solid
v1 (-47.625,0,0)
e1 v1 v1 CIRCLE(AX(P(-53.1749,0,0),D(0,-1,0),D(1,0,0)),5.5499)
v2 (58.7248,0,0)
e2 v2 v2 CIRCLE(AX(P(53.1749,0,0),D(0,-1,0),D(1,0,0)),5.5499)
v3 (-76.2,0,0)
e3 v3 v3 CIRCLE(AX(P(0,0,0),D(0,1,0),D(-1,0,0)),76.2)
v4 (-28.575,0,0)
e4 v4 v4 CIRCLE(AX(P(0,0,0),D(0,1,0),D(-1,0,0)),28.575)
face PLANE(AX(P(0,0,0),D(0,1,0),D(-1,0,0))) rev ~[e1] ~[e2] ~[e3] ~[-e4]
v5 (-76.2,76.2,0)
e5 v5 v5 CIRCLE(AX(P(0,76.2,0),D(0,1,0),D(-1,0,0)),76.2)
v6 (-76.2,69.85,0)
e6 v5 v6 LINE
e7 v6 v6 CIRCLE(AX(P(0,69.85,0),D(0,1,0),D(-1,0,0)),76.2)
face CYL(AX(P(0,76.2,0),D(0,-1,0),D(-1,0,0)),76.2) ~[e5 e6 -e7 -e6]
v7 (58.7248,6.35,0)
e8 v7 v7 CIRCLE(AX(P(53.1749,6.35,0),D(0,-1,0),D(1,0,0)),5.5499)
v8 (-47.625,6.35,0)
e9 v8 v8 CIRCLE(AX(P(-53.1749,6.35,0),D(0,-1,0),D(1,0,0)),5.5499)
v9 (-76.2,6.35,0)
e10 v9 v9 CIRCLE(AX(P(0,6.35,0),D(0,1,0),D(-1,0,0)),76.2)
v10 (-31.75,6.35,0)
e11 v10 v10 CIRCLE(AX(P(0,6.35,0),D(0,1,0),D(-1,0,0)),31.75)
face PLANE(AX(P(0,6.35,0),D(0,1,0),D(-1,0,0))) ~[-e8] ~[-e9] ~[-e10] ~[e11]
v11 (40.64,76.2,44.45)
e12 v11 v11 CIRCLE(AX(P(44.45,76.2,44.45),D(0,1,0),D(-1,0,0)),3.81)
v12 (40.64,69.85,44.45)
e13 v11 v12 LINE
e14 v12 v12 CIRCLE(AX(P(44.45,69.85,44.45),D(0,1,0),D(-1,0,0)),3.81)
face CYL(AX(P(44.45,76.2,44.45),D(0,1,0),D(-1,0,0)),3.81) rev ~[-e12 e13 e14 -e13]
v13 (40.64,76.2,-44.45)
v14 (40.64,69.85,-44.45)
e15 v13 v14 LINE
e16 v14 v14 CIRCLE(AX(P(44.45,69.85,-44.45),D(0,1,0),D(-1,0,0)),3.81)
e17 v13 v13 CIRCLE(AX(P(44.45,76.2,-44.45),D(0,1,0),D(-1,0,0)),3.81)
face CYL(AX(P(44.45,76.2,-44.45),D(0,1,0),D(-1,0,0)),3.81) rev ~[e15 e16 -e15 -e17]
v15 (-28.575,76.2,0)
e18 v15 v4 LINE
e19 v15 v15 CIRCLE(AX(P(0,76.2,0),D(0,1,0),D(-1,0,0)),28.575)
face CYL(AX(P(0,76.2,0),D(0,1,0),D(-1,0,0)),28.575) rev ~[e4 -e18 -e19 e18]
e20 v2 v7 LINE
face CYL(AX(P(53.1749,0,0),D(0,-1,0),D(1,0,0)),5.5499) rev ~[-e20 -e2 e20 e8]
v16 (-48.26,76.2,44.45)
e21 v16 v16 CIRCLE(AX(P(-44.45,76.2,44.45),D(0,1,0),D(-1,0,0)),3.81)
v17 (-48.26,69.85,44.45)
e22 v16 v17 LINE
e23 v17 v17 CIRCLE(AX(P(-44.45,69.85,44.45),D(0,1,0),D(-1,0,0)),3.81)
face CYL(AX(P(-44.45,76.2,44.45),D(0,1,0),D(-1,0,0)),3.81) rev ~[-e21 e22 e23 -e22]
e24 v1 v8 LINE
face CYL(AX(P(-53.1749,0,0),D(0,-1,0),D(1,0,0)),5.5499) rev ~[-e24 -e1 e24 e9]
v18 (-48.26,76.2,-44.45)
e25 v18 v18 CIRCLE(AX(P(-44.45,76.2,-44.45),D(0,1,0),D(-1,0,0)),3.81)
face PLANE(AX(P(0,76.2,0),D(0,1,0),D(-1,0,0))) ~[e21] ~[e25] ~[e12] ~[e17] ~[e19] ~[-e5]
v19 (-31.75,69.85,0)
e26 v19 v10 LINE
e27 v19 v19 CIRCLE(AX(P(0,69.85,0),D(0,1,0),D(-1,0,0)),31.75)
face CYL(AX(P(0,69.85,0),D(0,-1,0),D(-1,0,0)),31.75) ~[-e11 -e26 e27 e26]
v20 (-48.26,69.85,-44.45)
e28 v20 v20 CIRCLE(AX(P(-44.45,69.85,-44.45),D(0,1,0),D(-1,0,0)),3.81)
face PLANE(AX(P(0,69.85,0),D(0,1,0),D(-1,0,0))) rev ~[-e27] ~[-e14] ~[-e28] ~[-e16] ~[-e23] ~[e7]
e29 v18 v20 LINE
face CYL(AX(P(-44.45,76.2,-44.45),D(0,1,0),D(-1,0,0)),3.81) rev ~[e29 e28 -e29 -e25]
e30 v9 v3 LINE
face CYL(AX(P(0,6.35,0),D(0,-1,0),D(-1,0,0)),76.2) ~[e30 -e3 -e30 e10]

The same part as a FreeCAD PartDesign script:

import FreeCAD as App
import Part
import Sketcher
Q = App.Units.Quantity

doc = App.newDocument("Part")
body = doc.addObject("PartDesign::Body", "Body")

# Sketch on XY plane
sketch1 = body.newObject("Sketcher::SketchObject", "Sketch")
sketch1.AttachmentSupport = (doc.getObject("XY_Plane"), [""])
sketch1.MapMode = "FlatFace"
sketch1.addGeometry(Part.LineSegment(App.Vector(0, 76, 0), App.Vector(-76, 76, 0)), False)
sketch1.addGeometry(Part.LineSegment(App.Vector(-76, 76, 0), App.Vector(-76, 70, 0)), False)
sketch1.addGeometry(Part.LineSegment(App.Vector(-76, 70, 0), App.Vector(-32, 70, 0)), False)
sketch1.addGeometry(Part.LineSegment(App.Vector(-32, 70, 0), App.Vector(-32, 6, 0)), False)
sketch1.addGeometry(Part.LineSegment(App.Vector(-32, 6, 0), App.Vector(-76, 6, 0)), False)
sketch1.addGeometry(Part.LineSegment(App.Vector(-76, 6, 0), App.Vector(-76, 0, 0)), False)
sketch1.addGeometry(Part.LineSegment(App.Vector(-76, 0, 0), App.Vector(0, 0, 0)), False)
sketch1.addGeometry(Part.LineSegment(App.Vector(0, 0, 0), App.Vector(0, 76, 0)), False)
sketch1.addConstraint(Sketcher.Constraint("Coincident", 0, 2, 1, 1))
sketch1.addConstraint(Sketcher.Constraint("Coincident", 1, 2, 2, 1))
sketch1.addConstraint(Sketcher.Constraint("Coincident", 2, 2, 3, 1))
sketch1.addConstraint(Sketcher.Constraint("Coincident", 3, 2, 4, 1))
sketch1.addConstraint(Sketcher.Constraint("Coincident", 4, 2, 5, 1))
sketch1.addConstraint(Sketcher.Constraint("Coincident", 5, 2, 6, 1))
sketch1.addConstraint(Sketcher.Constraint("Coincident", 6, 2, 7, 1))
sketch1.addConstraint(Sketcher.Constraint("Coincident", 7, 2, 0, 1))
sketch1.addConstraint(Sketcher.Constraint("Horizontal", 0))
sketch1.addConstraint(Sketcher.Constraint("Vertical", 1))
sketch1.addConstraint(Sketcher.Constraint("Horizontal", 2))
sketch1.addConstraint(Sketcher.Constraint("Vertical", 3))
sketch1.addConstraint(Sketcher.Constraint("Horizontal", 4))
sketch1.addConstraint(Sketcher.Constraint("Vertical", 5))
sketch1.addConstraint(Sketcher.Constraint("Horizontal", 6))
sketch1.addConstraint(Sketcher.Constraint("Vertical", 7))
sketch1.addConstraint(Sketcher.Constraint("Coincident", 6, 2, -1, 1))
sketch1.addConstraint(Sketcher.Constraint("Vertical", 1, 2, 4, 2))
sketch1.addConstraint(Sketcher.Constraint("Equal", 1, 5))
sketch1.addConstraint(Sketcher.Constraint("Equal", 6, 7))
sketch1.addConstraint(Sketcher.Constraint("DistanceX", 0, 2, 0, 1, Q("3 in")))
sketch1.addConstraint(Sketcher.Constraint("DistanceY", 3, 2, 3, 1, Q("2.5 in")))
sketch1.addConstraint(Sketcher.Constraint("DistanceX", 2, 1, 2, 2, Q("1.75 in")))
revolution = body.newObject("PartDesign::Revolution", "Revolution")
revolution.Profile = sketch1
revolution.ReferenceAxis = (sketch1, ["V_Axis"])
revolution.Angle = 360

# Sketch on XZ plane
sketch2 = body.newObject("Sketcher::SketchObject", "Sketch001")
sketch2.AttachmentSupport = (doc.getObject("XZ_Plane"), [""])
sketch2.MapMode = "FlatFace"
sketch2.addGeometry(Part.Circle(App.Vector(-53, 0, 0), App.Vector(0, 0, 1), 6), False)
sketch2.addGeometry(Part.Circle(App.Vector(53, 0, 0), App.Vector(0, 0, 1), 6), False)
sketch2.addConstraint(Sketcher.Constraint("Equal", 0, 1))
sketch2.addConstraint(Sketcher.Constraint("Symmetric", 0, 3, 1, 3, -1, 1))
sketch2.addConstraint(Sketcher.Constraint("PointOnObject", 0, 3, -1))
sketch2.addConstraint(Sketcher.Constraint("Diameter", 0, Q("0.437 in")))
sketch2.addConstraint(Sketcher.Constraint("DistanceX", 0, 3, 1, 3, Q("4.187 in")))
pocket1 = body.newObject("PartDesign::Pocket", "Pocket")
pocket1.Profile = sketch2
pocket1.Length = Q("0.25 in")

# Sketch on XZ plane
sketch3 = body.newObject("Sketcher::SketchObject", "Sketch002")
sketch3.AttachmentSupport = (doc.getObject("XZ_Plane"), [""])
sketch3.MapMode = "FlatFace"
sketch3.AttachmentOffset = App.Placement(App.Vector(0, 0, -3 * 25.4), App.Rotation())
sketch3.addGeometry(Part.Circle(App.Vector(0, 0, 0), App.Vector(0, 0, 1), 29), False)
sketch3.addConstraint(Sketcher.Constraint("Coincident", 0, 3, -1, 1))
sketch3.addConstraint(Sketcher.Constraint("Diameter", 0, Q("2.25 in")))
pocket2 = body.newObject("PartDesign::Pocket", "Pocket001")
pocket2.Profile = sketch3
pocket2.Length = Q("6 in")
pocket2.Reversed = True

# Sketch on XZ plane
sketch4 = body.newObject("Sketcher::SketchObject", "Sketch003")
sketch4.AttachmentSupport = (doc.getObject("XZ_Plane"), [""])
sketch4.MapMode = "FlatFace"
sketch4.AttachmentOffset = App.Placement(App.Vector(0, 0, -3 * 25.4), App.Rotation())
sketch4.addGeometry(Part.Circle(App.Vector(44.5, 44.5, 0), App.Vector(0, 0, 1), 3.8), False)
sketch4.addGeometry(Part.Circle(App.Vector(-44.5, -44.5, 0), App.Vector(0, 0, 1), 3.8), False)
sketch4.addGeometry(Part.Circle(App.Vector(-44.5, 44.5, 0), App.Vector(0, 0, 1), 3.8), False)
sketch4.addGeometry(Part.Circle(App.Vector(44.5, -44.5, 0), App.Vector(0, 0, 1), 3.8), False)
sketch4.addConstraint(Sketcher.Constraint("Equal", 0, 1))
sketch4.addConstraint(Sketcher.Constraint("Equal", 1, 2))
sketch4.addConstraint(Sketcher.Constraint("Equal", 2, 3))
sketch4.addConstraint(Sketcher.Constraint("Symmetric", 0, 3, 1, 3, -1, 1))
sketch4.addConstraint(Sketcher.Constraint("Symmetric", 2, 3, 3, 3, -1, 1))
sketch4.addConstraint(Sketcher.Constraint("Symmetric", 0, 3, 2, 3, -2))
sketch4.addConstraint(Sketcher.Constraint("Diameter", 0, Q("0.3 in")))
sketch4.addConstraint(Sketcher.Constraint("DistanceX", 1, 3, 0, 3, Q("3.5 in")))
sketch4.addConstraint(Sketcher.Constraint("DistanceY", 1, 3, 0, 3, Q("3.5 in")))
pocket3 = body.newObject("PartDesign::Pocket", "Pocket002")
pocket3.Profile = sketch4
pocket3.Length = Q("0.25 in")
pocket3.Reversed = True

doc.recompute()
